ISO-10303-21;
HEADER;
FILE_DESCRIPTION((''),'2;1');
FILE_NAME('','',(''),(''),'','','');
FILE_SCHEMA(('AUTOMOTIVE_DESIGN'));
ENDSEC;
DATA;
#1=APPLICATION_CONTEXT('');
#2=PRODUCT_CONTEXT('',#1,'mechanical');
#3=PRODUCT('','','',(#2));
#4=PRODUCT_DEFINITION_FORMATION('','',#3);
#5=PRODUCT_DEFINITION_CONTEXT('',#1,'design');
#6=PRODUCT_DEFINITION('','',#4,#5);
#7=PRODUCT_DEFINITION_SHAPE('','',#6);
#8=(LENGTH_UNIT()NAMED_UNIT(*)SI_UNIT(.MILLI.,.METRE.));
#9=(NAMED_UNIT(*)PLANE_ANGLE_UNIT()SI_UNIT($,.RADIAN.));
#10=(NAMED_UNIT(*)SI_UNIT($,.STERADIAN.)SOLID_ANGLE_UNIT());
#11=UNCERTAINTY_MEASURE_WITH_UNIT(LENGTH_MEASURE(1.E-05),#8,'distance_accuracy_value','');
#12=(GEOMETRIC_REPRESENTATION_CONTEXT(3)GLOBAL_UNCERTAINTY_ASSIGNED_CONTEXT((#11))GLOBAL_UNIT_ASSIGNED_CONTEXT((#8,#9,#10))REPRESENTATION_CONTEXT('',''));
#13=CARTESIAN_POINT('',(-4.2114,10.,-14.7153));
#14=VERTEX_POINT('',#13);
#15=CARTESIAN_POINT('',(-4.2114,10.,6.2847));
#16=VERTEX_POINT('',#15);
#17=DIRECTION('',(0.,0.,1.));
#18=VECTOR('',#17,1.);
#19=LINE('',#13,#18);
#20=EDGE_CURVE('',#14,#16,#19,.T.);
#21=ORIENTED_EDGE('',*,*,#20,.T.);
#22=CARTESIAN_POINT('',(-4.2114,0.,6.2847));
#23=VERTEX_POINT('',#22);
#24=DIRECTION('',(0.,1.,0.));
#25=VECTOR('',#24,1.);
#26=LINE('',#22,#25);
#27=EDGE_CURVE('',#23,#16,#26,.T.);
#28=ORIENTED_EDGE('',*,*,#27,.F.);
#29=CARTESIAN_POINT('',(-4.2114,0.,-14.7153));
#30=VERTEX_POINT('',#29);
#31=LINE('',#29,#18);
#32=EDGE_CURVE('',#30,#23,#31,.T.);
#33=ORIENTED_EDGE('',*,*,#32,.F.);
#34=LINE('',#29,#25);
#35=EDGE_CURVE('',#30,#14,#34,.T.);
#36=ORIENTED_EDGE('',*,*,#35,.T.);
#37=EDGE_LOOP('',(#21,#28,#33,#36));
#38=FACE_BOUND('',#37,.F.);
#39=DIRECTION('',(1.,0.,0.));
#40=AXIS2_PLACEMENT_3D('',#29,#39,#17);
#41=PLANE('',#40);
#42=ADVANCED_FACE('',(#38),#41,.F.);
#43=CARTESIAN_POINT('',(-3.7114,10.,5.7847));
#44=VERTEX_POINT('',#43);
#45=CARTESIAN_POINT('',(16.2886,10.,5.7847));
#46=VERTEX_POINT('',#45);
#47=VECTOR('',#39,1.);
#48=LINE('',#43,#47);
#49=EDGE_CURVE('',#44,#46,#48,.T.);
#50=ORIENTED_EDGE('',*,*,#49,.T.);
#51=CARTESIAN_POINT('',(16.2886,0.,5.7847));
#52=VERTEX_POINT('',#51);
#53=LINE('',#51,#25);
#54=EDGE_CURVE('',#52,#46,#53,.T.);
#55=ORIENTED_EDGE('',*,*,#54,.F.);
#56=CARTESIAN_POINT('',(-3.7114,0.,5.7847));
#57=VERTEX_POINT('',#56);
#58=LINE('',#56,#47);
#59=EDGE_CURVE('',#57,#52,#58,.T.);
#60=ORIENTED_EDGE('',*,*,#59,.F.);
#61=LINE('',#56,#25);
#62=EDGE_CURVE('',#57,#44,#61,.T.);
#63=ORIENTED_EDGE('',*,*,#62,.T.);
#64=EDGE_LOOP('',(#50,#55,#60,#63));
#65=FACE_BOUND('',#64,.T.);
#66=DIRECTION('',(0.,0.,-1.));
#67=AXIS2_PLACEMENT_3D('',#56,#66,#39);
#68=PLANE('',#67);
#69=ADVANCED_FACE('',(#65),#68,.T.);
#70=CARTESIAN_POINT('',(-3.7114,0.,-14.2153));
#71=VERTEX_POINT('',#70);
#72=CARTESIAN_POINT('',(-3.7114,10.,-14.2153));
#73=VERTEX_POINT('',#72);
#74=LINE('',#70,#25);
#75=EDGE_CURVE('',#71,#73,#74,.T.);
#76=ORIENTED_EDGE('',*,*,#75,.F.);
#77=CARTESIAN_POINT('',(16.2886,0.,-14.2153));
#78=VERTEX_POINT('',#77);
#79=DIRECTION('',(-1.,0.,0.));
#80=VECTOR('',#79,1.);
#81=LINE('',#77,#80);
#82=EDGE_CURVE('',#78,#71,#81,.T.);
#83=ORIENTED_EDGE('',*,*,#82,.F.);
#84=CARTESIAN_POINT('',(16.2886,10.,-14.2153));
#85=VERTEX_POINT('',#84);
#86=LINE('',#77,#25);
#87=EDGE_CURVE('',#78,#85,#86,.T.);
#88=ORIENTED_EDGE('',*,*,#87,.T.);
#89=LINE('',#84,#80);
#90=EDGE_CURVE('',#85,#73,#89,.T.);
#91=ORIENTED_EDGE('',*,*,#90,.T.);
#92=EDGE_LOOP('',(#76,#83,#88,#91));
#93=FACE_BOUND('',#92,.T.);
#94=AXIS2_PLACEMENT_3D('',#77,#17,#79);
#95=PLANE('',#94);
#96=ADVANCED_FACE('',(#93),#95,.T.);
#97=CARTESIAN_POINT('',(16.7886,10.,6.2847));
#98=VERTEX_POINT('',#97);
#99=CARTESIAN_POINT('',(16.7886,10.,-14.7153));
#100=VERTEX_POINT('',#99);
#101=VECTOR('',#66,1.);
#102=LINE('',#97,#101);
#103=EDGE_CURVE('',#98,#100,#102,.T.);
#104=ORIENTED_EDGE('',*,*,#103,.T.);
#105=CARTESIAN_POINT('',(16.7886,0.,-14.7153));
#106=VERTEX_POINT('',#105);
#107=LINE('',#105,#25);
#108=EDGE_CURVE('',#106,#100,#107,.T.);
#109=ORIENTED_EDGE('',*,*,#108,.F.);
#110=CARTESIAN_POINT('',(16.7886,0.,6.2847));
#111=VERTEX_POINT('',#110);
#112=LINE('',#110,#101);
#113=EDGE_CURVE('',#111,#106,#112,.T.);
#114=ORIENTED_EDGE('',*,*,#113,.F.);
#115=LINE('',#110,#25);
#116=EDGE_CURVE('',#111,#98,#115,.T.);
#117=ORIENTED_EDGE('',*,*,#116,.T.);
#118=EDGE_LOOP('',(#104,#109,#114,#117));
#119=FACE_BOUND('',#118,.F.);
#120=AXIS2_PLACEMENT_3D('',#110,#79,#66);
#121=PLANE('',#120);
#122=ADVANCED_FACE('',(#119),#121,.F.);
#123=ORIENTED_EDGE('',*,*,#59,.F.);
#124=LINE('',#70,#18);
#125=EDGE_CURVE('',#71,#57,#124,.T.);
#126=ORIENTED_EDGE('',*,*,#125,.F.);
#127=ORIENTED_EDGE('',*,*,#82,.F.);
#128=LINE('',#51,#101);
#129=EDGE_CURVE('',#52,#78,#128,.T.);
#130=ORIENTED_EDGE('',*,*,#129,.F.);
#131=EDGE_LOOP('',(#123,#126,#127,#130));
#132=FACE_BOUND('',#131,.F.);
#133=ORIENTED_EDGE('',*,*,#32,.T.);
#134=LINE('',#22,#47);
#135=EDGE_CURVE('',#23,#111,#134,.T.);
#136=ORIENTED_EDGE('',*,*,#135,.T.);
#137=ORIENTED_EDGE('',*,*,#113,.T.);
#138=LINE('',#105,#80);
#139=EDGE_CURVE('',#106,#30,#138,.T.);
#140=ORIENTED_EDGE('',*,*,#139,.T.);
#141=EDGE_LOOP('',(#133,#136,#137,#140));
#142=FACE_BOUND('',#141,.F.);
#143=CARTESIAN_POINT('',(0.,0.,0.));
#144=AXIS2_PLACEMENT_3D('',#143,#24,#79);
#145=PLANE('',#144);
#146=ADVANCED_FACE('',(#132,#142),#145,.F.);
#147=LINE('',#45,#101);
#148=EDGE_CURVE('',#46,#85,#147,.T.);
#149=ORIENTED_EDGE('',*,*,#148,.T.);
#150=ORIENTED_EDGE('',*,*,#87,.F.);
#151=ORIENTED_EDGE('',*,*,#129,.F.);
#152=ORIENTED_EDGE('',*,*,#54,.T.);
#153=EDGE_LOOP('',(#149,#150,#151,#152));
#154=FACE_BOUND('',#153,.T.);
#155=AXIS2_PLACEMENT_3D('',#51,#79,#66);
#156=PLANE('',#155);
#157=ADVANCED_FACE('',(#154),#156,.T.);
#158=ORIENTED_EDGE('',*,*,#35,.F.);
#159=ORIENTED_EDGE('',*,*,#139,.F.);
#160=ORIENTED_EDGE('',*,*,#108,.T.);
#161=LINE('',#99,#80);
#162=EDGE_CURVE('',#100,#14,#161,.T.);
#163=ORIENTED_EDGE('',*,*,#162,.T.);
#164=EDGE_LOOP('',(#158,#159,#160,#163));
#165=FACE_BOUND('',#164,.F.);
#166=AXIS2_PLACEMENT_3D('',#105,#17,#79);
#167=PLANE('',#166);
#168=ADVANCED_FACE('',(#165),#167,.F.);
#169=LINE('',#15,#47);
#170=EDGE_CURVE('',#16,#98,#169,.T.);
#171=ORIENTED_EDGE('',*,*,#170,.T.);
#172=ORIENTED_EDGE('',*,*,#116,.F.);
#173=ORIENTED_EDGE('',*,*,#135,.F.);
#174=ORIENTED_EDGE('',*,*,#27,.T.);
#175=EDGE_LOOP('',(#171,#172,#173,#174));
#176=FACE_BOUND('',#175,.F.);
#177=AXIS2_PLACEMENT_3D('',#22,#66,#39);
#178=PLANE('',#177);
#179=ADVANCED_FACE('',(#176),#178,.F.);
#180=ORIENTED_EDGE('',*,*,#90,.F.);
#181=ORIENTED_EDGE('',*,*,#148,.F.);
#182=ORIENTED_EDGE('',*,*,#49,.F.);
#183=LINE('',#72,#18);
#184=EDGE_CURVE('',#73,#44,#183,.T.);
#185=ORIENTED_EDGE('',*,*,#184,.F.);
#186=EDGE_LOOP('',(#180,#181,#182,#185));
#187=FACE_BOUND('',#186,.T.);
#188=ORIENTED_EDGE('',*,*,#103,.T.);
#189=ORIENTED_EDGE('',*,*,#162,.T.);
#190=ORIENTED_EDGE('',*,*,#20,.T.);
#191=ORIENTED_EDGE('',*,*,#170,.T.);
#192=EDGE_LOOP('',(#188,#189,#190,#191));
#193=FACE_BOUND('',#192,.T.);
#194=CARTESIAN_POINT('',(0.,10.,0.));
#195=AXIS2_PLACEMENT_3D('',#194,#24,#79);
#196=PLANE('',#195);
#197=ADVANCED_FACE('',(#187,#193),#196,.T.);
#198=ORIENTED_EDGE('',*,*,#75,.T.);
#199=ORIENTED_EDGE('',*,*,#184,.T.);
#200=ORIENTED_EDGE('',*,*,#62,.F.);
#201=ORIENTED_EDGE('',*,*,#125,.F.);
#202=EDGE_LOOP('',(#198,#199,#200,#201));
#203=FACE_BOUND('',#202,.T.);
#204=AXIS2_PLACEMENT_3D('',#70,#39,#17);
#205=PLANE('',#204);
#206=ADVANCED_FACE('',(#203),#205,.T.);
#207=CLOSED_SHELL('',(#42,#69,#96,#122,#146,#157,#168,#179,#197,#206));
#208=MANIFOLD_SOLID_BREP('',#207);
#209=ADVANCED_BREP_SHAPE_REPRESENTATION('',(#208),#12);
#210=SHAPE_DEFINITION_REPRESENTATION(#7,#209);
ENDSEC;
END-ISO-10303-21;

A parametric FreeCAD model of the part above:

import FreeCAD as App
import Part
import Sketcher
from FreeCAD import Vector
Q = App.Units.Quantity


def add_polygon(sketch, points):
    """Adds a closed chain of lines whose ends are joined by coincident constraints."""
    first, n = sketch.GeometryCount, len(points)
    for a, b in zip(points, points[1:] + points[:1]):
        sketch.addGeometry(Part.LineSegment(App.Vector(*a, 0), App.Vector(*b, 0)), False)
    for i in range(n):
        sketch.addConstraint(Sketcher.Constraint("Coincident", first + i, 2, first + (i + 1) % n, 1))

doc = App.newDocument("Part")
params = doc.addObject("Spreadsheet::Sheet", "Params")
for row, (alias, value) in enumerate([
    ("sketch1_width", "20 mm"),
    ("pad1_length", "10 mm"),
], start=1):
    params.set(f"A{row}", alias)
    params.set(f"B{row}", "=" + value)
    params.setAlias(f"B{row}", alias)

body = doc.addObject("PartDesign::Body", "Body")

sketch1 = doc.addObject("Sketcher::SketchObject", "Sketch")
body.addObject(sketch1)
sketch1.AttachmentSupport = (doc.XZ_Plane, [""])
sketch1.MapMode = "FlatFace"
add_polygon(sketch1, [(-4.2114, -14.7153), (-4.2114, 6.2847), (16.7886, 6.2847), (16.7886, -14.7153)])
add_polygon(sketch1, [(16.2886, 5.7847), (-3.7114, 5.7847), (-3.7114, -14.2153), (16.2886, -14.2153)])
sketch1.addConstraint([
    Sketcher.Constraint("Vertical", 0),
    Sketcher.Constraint("Horizontal", 1),
    Sketcher.Constraint("Vertical", 2),
    Sketcher.Constraint("Horizontal", 3),
    Sketcher.Constraint("Horizontal", 4),
    Sketcher.Constraint("Vertical", 5),
    Sketcher.Constraint("Horizontal", 6),
    Sketcher.Constraint("Vertical", 7),
    Sketcher.Constraint("Equal", 3, 0),
    Sketcher.Constraint("Equal", 6, 5),
    Sketcher.Constraint("DistanceX", 4, 2, 4, 1, Q("20 mm")),
    Sketcher.Constraint("DistanceX", 0, 2, 4, 2, Q("0.5 mm")),
    Sketcher.Constraint("DistanceY", 4, 2, 0, 2, Q("0.5 mm")),
    Sketcher.Constraint("DistanceY", 3, 2, 5, 2, Q("0.5 mm")),
    Sketcher.Constraint("DistanceX", 0, 2, -1, 1, Q("4.2114 mm")),
    Sketcher.Constraint("DistanceY", -1, 1, 0, 2, Q("6.2847 mm")),
])
sketch1.setExpression("Constraints[18]", "Params.sketch1_width")
pad1 = doc.addObject("PartDesign::Pad", "Pad")
body.addObject(pad1)
pad1.Profile = sketch1
pad1.setExpression("Length", "Params.pad1_length")
pad1.Reversed = True

doc.recompute()
